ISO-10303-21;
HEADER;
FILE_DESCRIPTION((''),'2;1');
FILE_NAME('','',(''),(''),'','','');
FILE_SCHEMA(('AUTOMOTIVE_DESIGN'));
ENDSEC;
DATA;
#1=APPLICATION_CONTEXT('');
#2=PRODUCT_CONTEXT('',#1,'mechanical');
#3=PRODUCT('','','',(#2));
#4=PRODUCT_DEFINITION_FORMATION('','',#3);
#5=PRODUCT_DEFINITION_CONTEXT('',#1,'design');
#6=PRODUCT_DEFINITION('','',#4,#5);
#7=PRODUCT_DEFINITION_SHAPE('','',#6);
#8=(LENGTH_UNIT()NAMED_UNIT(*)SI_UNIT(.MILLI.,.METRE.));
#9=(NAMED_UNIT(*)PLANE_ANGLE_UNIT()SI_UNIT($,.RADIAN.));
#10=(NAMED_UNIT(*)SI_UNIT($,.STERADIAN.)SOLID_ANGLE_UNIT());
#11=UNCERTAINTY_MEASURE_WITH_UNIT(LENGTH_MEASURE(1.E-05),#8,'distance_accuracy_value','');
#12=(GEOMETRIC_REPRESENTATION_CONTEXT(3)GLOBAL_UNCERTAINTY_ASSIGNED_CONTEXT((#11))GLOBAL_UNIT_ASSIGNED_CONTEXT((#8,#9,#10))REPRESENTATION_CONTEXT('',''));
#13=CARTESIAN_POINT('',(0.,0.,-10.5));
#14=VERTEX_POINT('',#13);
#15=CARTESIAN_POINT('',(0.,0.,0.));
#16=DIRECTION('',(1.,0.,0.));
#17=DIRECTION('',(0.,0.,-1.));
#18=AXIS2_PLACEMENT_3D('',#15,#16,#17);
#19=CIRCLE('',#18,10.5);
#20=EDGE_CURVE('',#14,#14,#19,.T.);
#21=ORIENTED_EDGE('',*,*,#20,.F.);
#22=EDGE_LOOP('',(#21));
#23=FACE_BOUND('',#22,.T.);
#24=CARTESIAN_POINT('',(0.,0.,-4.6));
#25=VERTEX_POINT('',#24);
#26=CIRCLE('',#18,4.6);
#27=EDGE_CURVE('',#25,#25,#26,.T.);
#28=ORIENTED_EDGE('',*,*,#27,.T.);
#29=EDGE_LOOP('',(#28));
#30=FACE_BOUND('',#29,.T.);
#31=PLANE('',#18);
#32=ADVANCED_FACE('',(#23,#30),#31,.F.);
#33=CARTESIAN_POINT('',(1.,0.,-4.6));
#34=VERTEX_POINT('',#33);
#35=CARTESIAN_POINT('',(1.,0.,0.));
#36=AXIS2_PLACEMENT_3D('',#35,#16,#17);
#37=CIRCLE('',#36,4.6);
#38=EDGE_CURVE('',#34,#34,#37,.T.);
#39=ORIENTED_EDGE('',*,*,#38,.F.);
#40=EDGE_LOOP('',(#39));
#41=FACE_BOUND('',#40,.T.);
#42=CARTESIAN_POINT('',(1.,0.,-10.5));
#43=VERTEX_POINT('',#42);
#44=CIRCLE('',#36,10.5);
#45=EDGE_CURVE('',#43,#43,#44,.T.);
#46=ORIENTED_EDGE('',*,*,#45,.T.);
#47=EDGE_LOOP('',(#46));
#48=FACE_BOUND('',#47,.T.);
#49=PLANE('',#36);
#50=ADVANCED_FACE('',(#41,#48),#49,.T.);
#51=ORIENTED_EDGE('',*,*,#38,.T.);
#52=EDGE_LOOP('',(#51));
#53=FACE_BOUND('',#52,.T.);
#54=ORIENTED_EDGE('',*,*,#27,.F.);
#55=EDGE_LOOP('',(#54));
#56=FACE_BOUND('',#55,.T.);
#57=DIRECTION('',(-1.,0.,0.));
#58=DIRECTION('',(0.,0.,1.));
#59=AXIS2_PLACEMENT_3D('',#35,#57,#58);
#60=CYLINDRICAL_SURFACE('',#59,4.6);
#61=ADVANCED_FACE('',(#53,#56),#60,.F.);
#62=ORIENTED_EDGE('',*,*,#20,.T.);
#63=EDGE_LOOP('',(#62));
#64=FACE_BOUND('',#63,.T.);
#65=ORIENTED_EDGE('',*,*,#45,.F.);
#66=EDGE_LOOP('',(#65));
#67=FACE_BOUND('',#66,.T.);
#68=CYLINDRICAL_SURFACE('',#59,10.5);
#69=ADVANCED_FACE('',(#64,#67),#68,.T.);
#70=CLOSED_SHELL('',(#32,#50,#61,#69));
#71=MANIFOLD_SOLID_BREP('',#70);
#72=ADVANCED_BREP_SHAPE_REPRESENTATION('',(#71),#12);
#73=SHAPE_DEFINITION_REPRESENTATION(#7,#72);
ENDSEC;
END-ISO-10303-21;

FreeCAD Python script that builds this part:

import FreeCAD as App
import Part
import Sketcher
Q = App.Units.Quantity

doc = App.newDocument("Part")
body = doc.addObject("PartDesign::Body", "Body")

# Sketch on YZ plane
sketch1 = body.newObject("Sketcher::SketchObject", "Sketch")
sketch1.AttachmentSupport = (doc.getObject("YZ_Plane"), [""])
sketch1.MapMode = "FlatFace"
sketch1.addGeometry(Part.Circle(App.Vector(0, 0, 0), App.Vector(0, 0, 1), 10.5), False)
sketch1.addGeometry(Part.Circle(App.Vector(0, 0, 0), App.Vector(0, 0, 1), 4.6), False)
sketch1.addConstraint(Sketcher.Constraint("Coincident", 0, 3, -1, 1))
sketch1.addConstraint(Sketcher.Constraint("Coincident", 1, 3, -1, 1))
sketch1.addConstraint(Sketcher.Constraint("Diameter", 0, Q("21 mm")))
sketch1.addConstraint(Sketcher.Constraint("Diameter", 1, Q("9.2 mm")))
pad1 = body.newObject("PartDesign::Pad", "Pad")
pad1.Profile = sketch1
pad1.Length = 1

doc.recompute()
